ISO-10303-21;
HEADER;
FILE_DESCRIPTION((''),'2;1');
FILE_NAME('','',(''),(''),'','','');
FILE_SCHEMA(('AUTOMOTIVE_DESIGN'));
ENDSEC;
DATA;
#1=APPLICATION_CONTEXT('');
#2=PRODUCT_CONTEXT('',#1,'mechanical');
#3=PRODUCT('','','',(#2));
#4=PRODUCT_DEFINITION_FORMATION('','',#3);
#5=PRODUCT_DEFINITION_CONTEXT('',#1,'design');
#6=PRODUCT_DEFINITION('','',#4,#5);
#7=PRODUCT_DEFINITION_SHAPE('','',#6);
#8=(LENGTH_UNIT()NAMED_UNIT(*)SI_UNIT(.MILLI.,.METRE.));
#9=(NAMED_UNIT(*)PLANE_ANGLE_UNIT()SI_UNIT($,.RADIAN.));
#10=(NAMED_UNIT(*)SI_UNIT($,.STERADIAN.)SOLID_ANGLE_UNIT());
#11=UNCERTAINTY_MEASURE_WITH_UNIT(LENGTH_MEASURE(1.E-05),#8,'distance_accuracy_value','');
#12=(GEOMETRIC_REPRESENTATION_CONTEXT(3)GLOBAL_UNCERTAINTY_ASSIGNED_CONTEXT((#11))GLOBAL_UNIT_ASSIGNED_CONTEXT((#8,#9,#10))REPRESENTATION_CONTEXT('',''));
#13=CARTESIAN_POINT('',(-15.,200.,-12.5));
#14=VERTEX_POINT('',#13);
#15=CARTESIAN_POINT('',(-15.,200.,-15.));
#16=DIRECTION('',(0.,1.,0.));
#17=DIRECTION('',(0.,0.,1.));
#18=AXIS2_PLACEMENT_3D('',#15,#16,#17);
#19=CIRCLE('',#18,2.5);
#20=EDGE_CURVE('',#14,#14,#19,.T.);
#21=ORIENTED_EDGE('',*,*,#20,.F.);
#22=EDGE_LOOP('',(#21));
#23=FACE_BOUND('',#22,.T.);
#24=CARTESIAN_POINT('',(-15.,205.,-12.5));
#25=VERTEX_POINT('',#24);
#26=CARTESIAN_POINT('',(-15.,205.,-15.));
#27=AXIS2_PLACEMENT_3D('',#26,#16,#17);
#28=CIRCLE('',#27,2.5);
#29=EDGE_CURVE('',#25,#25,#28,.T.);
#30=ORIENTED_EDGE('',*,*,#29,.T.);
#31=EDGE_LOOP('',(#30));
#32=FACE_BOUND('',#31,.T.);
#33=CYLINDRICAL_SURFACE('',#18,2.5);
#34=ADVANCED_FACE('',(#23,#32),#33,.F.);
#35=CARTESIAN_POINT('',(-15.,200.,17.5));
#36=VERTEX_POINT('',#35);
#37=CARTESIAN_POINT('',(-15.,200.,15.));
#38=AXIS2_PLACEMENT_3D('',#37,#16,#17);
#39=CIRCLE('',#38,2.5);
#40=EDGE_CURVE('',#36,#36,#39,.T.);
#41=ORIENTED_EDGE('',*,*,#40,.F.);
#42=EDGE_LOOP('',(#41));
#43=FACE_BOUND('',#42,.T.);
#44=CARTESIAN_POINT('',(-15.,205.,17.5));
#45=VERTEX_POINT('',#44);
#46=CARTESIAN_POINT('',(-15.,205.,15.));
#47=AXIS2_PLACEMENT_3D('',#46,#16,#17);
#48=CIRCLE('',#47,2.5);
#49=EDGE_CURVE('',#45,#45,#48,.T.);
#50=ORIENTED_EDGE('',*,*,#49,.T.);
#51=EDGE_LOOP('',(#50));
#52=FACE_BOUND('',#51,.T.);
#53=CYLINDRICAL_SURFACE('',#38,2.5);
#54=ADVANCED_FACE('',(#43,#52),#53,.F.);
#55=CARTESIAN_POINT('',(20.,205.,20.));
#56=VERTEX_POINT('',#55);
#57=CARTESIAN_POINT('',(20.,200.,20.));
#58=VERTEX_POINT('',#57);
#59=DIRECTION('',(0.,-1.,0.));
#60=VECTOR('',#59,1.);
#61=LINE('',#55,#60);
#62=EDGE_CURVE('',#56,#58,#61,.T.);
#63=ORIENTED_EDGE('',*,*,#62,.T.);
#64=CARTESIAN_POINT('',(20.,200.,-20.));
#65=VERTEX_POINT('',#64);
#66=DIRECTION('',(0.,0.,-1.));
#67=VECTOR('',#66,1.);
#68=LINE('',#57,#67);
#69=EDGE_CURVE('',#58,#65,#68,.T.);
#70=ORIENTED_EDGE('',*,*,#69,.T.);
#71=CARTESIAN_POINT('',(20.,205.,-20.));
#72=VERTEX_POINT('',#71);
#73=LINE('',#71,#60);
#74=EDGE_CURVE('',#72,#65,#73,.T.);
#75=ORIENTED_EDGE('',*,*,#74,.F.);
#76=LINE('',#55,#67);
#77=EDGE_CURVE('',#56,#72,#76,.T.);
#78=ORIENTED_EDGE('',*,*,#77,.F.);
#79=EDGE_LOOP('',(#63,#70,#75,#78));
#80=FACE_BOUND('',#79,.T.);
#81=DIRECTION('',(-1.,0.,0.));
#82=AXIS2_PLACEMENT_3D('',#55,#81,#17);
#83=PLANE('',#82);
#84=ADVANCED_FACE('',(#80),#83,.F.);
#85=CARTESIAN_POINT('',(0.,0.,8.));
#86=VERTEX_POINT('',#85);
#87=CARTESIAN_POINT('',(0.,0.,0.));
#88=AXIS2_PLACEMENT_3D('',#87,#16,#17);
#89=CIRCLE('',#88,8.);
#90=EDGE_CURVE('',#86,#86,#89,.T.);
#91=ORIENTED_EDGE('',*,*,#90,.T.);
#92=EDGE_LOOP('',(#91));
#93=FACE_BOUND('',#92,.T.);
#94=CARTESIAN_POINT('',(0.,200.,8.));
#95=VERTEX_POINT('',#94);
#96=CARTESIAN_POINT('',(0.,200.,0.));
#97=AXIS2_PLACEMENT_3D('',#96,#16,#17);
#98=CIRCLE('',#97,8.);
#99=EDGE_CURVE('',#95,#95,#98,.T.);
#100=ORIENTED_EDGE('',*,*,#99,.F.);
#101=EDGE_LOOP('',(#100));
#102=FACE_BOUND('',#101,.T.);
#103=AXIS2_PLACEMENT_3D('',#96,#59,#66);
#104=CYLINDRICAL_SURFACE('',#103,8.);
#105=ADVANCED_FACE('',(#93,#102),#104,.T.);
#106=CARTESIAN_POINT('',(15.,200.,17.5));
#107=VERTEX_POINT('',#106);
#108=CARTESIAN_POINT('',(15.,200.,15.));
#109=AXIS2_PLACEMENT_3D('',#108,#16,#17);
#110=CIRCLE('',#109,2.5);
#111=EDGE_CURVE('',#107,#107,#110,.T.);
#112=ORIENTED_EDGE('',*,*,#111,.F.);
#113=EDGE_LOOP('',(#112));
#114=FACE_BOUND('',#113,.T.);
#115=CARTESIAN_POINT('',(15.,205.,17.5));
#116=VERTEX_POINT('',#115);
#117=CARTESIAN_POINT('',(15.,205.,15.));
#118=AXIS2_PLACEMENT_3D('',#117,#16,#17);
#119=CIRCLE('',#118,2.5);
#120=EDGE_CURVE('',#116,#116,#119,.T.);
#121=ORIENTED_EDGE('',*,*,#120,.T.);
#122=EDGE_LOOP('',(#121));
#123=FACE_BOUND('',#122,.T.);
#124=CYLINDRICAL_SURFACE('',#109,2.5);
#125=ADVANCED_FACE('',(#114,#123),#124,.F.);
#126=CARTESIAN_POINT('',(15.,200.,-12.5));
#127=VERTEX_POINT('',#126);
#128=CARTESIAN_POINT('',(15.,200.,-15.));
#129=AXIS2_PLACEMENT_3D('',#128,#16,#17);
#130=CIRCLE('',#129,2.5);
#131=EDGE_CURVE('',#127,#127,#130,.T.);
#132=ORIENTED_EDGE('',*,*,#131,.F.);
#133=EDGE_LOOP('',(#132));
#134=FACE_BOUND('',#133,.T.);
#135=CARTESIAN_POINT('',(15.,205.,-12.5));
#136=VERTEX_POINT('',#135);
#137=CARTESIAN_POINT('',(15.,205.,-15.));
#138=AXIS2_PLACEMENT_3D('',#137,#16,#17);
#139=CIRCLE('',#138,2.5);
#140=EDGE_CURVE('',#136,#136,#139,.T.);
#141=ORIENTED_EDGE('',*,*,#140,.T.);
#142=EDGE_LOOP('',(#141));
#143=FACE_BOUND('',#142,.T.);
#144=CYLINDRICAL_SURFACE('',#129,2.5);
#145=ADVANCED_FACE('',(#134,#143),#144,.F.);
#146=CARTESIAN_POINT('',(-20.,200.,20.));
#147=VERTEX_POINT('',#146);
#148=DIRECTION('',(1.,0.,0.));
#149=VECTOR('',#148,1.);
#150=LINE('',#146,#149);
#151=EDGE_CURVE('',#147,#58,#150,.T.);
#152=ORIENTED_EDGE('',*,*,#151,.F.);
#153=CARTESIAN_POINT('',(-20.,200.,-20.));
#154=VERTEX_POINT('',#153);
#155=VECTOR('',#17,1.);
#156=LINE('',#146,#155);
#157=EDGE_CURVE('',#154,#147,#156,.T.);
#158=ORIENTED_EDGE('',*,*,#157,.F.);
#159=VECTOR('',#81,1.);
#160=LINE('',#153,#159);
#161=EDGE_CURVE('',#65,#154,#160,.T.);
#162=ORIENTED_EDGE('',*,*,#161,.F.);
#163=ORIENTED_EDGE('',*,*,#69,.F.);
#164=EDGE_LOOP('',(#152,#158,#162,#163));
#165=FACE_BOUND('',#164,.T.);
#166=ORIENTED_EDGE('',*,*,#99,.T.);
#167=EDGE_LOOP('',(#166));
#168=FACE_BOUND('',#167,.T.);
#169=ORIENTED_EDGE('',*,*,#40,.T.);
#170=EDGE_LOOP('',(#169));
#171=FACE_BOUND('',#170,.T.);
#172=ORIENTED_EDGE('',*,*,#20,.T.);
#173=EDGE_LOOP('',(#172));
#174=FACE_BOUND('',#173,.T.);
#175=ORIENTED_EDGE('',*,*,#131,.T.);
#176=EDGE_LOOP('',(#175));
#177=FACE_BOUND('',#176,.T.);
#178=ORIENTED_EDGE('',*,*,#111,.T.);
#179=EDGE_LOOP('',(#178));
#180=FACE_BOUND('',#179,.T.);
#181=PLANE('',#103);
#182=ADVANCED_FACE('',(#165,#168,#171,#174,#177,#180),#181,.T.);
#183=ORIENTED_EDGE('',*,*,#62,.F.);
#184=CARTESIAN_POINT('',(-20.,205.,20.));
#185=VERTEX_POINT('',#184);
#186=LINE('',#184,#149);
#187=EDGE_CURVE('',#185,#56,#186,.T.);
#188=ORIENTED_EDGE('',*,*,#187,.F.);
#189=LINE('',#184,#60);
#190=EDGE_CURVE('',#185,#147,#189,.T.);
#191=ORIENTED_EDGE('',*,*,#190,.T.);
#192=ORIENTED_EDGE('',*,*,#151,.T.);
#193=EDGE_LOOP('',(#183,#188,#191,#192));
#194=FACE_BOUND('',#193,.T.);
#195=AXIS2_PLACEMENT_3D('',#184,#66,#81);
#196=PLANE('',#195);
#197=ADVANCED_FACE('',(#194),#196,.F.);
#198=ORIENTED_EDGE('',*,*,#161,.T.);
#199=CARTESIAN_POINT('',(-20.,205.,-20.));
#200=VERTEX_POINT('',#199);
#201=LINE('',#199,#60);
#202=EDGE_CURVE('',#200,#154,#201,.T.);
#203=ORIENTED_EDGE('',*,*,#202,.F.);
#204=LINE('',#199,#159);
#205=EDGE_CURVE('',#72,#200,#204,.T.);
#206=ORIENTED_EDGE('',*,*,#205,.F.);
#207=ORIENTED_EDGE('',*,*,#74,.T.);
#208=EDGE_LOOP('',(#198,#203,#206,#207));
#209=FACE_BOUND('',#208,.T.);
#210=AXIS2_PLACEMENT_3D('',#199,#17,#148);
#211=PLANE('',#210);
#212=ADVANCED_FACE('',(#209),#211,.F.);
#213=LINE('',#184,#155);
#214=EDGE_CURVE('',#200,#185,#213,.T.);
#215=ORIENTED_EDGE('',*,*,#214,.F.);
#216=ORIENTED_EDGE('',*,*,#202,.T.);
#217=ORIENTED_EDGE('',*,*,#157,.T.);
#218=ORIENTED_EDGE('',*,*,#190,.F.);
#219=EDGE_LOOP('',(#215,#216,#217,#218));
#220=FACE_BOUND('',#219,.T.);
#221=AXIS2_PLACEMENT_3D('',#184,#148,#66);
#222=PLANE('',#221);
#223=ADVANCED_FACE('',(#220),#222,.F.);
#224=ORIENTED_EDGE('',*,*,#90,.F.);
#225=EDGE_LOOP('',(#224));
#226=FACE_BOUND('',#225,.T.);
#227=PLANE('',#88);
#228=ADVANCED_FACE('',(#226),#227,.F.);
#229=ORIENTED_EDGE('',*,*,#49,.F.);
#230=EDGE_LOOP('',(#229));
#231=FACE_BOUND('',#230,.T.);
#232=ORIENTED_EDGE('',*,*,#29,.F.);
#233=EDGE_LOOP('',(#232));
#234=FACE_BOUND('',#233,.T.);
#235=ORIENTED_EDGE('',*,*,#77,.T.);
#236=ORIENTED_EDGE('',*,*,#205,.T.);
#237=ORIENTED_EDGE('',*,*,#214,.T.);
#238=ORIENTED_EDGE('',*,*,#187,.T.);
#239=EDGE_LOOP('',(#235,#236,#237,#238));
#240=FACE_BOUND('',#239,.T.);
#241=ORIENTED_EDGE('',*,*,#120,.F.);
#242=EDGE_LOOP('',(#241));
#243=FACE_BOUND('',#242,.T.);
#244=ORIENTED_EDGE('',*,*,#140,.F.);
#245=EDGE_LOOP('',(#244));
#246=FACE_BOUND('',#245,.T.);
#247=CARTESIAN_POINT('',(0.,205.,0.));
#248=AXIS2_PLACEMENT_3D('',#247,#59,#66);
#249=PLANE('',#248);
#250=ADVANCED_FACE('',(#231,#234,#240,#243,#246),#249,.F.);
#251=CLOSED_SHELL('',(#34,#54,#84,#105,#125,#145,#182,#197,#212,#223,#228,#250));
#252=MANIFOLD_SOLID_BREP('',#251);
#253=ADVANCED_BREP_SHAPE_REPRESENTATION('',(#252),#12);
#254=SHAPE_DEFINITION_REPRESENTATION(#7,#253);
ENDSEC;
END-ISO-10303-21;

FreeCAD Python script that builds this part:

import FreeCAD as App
import Part
import Sketcher
from FreeCAD import Vector


def add_polygon(sketch, points):
    """Adds a closed chain of lines whose ends are joined by coincident constraints."""
    first, n = sketch.GeometryCount, len(points)
    for a, b in zip(points, points[1:] + points[:1]):
        sketch.addGeometry(Part.LineSegment(App.Vector(*a, 0), App.Vector(*b, 0)), False)
    for i in range(n):
        sketch.addConstraint(Sketcher.Constraint("Coincident", first + i, 2, first + (i + 1) % n, 1))

doc = App.newDocument("Part")
body = doc.addObject("PartDesign::Body", "Body")

# Sketch on XZ plane
sketch1 = doc.addObject("Sketcher::SketchObject", "Sketch")
body.addObject(sketch1)
sketch1.AttachmentSupport = (doc.XZ_Plane, [""])
sketch1.MapMode = "FlatFace"
sketch1.addGeometry(Part.Circle(Vector(0, 0, 0), Vector(0, 0, 1), 8), False)
sketch1.addConstraint([
    Sketcher.Constraint("Coincident", 0, 3, -1, 1),
    Sketcher.Constraint("Diameter", 0, 16.0),
])
pad1 = doc.addObject("PartDesign::Pad", "Pad")
body.addObject(pad1)
pad1.Profile = sketch1
pad1.Length = 200
pad1.Reversed = True

# Sketch on XZ plane
sketch2 = doc.addObject("Sketcher::SketchObject", "Sketch001")
body.addObject(sketch2)
sketch2.AttachmentSupport = (doc.XZ_Plane, [""])
sketch2.MapMode = "FlatFace"
sketch2.AttachmentOffset = App.Placement(Vector(0, 0, -200), App.Rotation())
add_polygon(sketch2, [(-20, -20), (-20, 20), (20, 20), (20, -20)])  # lines 0-3
sketch2.addConstraint([
    Sketcher.Constraint("Vertical", 0),
    Sketcher.Constraint("Horizontal", 1),
    Sketcher.Constraint("Vertical", 2),
    Sketcher.Constraint("Horizontal", 3),
    Sketcher.Constraint("Symmetric", 0, 2, 2, 2, -1, 1),
    Sketcher.Constraint("Equal", 3, 0),
    Sketcher.Constraint("DistanceX", 1, 1, 1, 2, 40.0),
])
pad2 = doc.addObject("PartDesign::Pad", "Pad001")
body.addObject(pad2)
pad2.Profile = sketch2
pad2.Length = 5
pad2.Reversed = True

# Sketch on XZ plane
sketch3 = doc.addObject("Sketcher::SketchObject", "Sketch002")
body.addObject(sketch3)
sketch3.AttachmentSupport = (doc.XZ_Plane, [""])
sketch3.MapMode = "FlatFace"
sketch3.AttachmentOffset = App.Placement(Vector(0, 0, -205), App.Rotation())
sketch3.addGeometry([
    Part.Circle(Vector(-15, -15, 0), Vector(0, 0, 1), 2.5),
    Part.Circle(Vector(15, -15, 0), Vector(0, 0, 1), 2.5),
    Part.Circle(Vector(15, 15, 0), Vector(0, 0, 1), 2.5),
    Part.Circle(Vector(-15, 15, 0), Vector(0, 0, 1), 2.5),
], False)
sketch3.addConstraint([
    Sketcher.Constraint("Equal", 0, 1),
    Sketcher.Constraint("Equal", 1, 2),
    Sketcher.Constraint("Equal", 2, 3),
    Sketcher.Constraint("Symmetric", 0, 3, 2, 3, -1, 1),
    Sketcher.Constraint("Symmetric", 1, 3, 3, 3, -1, 1),
    Sketcher.Constraint("Symmetric", 0, 3, 1, 3, -2),
    Sketcher.Constraint("Diameter", 0, 5.0),
    Sketcher.Constraint("DistanceX", 0, 3, -1, 1, 15.0),
    Sketcher.Constraint("DistanceY", 0, 3, -1, 1, 15.0),
])
pocket1 = doc.addObject("PartDesign::Pocket", "Pocket")
body.addObject(pocket1)
pocket1.Profile = sketch3
pocket1.Length = 5
pocket1.Reversed = True

doc.recompute()
